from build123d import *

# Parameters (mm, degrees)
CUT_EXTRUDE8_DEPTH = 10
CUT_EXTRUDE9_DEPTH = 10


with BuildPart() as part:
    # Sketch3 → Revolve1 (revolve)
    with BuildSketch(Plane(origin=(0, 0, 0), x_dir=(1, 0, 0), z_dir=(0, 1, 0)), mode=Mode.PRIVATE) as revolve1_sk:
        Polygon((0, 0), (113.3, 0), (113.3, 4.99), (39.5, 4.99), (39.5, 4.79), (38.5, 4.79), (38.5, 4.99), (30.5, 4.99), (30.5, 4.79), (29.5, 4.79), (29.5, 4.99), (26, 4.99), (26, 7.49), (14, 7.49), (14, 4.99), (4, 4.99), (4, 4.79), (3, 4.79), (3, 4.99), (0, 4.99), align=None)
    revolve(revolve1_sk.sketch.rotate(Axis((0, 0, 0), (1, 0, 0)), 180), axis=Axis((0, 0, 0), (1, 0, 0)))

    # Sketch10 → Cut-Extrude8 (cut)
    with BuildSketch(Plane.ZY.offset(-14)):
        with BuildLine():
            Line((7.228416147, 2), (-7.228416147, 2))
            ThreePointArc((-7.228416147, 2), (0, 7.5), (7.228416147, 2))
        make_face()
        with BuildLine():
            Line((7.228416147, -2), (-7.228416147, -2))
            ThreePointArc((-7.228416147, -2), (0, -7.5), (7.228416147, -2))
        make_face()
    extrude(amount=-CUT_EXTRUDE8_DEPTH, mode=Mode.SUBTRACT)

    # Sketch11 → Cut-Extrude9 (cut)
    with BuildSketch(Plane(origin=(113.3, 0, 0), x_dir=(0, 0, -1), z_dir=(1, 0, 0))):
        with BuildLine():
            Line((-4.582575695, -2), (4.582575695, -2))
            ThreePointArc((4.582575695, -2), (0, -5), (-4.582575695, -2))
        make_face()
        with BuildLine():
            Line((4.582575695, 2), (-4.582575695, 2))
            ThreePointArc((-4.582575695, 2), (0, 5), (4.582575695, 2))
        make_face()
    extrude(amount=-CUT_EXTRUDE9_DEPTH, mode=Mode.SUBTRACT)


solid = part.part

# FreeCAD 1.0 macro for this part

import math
import FreeCAD as App
import Part
import Sketcher
Q = App.Units.Quantity


def add_polygon(sketch, points):
    """Adds a closed chain of lines whose ends are joined by coincident constraints."""
    first, n = sketch.GeometryCount, len(points)
    for a, b in zip(points, points[1:] + points[:1]):
        sketch.addGeometry(Part.LineSegment(App.Vector(*a, 0), App.Vector(*b, 0)), False)
    for i in range(n):
        sketch.addConstraint(Sketcher.Constraint("Coincident", first + i, 2, first + (i + 1) % n, 1))

doc = App.newDocument("Part")
body = doc.addObject("PartDesign::Body", "Body")

sketch1 = body.newObject("Sketcher::SketchObject", "Sketch")
sketch1.AttachmentSupport = (doc.getObject("XZ_Plane"), [""])
sketch1.MapMode = "FlatFace"
add_polygon(sketch1, [(0, 0), (113.3, 0), (113.3, -4.99), (39.5, -4.99), (39.5, -4.79), (38.5, -4.79), (38.5, -4.99), (30.5, -4.99), (30.5, -4.79), (29.5, -4.79), (29.5, -4.99), (26, -4.99), (26, -7.49), (14, -7.49), (14, -4.99), (4, -4.99), (4, -4.79), (3, -4.79), (3, -4.99), (0, -4.99)])
sketch1.addConstraint(Sketcher.Constraint("Horizontal", 0))
sketch1.addConstraint(Sketcher.Constraint("Vertical", 1))
sketch1.addConstraint(Sketcher.Constraint("Horizontal", 2))
sketch1.addConstraint(Sketcher.Constraint("Vertical", 3))
sketch1.addConstraint(Sketcher.Constraint("Horizontal", 4))
sketch1.addConstraint(Sketcher.Constraint("Vertical", 5))
sketch1.addConstraint(Sketcher.Constraint("Horizontal", 6))
sketch1.addConstraint(Sketcher.Constraint("Vertical", 7))
sketch1.addConstraint(Sketcher.Constraint("Horizontal", 8))
sketch1.addConstraint(Sketcher.Constraint("Vertical", 9))
sketch1.addConstraint(Sketcher.Constraint("Horizontal", 10))
sketch1.addConstraint(Sketcher.Constraint("Vertical", 11))
sketch1.addConstraint(Sketcher.Constraint("Horizontal", 12))
sketch1.addConstraint(Sketcher.Constraint("Vertical", 13))
sketch1.addConstraint(Sketcher.Constraint("Horizontal", 14))
sketch1.addConstraint(Sketcher.Constraint("Vertical", 15))
sketch1.addConstraint(Sketcher.Constraint("Horizontal", 16))
sketch1.addConstraint(Sketcher.Constraint("Vertical", 17))
sketch1.addConstraint(Sketcher.Constraint("Horizontal", 18))
sketch1.addConstraint(Sketcher.Constraint("Vertical", 19))
sketch1.addConstraint(Sketcher.Constraint("Coincident", 19, 2, -1, 1))
sketch1.addConstraint(Sketcher.Constraint("Horizontal", 2, 2, 5, 2))
sketch1.addConstraint(Sketcher.Constraint("Horizontal", 4, 2, 7, 2))
sketch1.addConstraint(Sketcher.Constraint("Horizontal", 6, 2, 9, 2))
sketch1.addConstraint(Sketcher.Constraint("Horizontal", 10, 2, 13, 2))
sketch1.addConstraint(Sketcher.Constraint("Horizontal", 8, 2, 15, 2))
sketch1.addConstraint(Sketcher.Constraint("Horizontal", 14, 2, 17, 2))
sketch1.addConstraint(Sketcher.Constraint("Equal", 4, 8))
sketch1.addConstraint(Sketcher.Constraint("Equal", 8, 16))
sketch1.addConstraint(Sketcher.Constraint("DistanceX", 4, 2, 4, 1, Q("1 mm")))
sketch1.addConstraint(Sketcher.Constraint("DistanceX", 6, 2, 6, 1, Q("8 mm")))
sketch1.addConstraint(Sketcher.Constraint("DistanceX", 12, 2, 12, 1, Q("12 mm")))
sketch1.addConstraint(Sketcher.Constraint("DistanceX", 14, 2, 14, 1, Q("10 mm")))
sketch1.addConstraint(Sketcher.Constraint("DistanceX", 18, 2, 18, 1, Q("3 mm")))
sketch1.addConstraint(Sketcher.Constraint("DistanceX", 0, 1, 0, 2, Q("113.3 mm")))
sketch1.addConstraint(Sketcher.Constraint("DistanceX", 2, 2, 2, 1, Q("73.8 mm")))
sketch1.addConstraint(Sketcher.Constraint("DistanceY", 3, 1, 3, 2, Q("0.2 mm")))
sketch1.addConstraint(Sketcher.Constraint("DistanceY", 11, 2, 11, 1, Q("2.5 mm")))
sketch1.addConstraint(Sketcher.Constraint("DistanceY", 1, 2, 1, 1, Q("4.99 mm")))
revolution = body.newObject("PartDesign::Revolution", "Revolution")
revolution.Profile = sketch1
revolution.ReferenceAxis = (sketch1, ["H_Axis"])
revolution.Angle = 360

sketch2 = body.newObject("Sketcher::SketchObject", "Sketch001")
sketch2.AttachmentSupport = (doc.getObject("YZ_Plane"), [""])
sketch2.MapMode = "FlatFace"
sketch2.AttachmentOffset = App.Placement(App.Vector(0, 0, 14), App.Rotation())
sketch2.addGeometry(Part.LineSegment(App.Vector(2, -7, 0), App.Vector(2, 7, 0)), False)
sketch2.addGeometry(Part.ArcOfCircle(Part.Circle(App.Vector(0, 0, 0), App.Vector(0, 0, 1), 7), math.radians(-75), math.radians(75)), False)
sketch2.addGeometry(Part.LineSegment(App.Vector(-2, 7, 0), App.Vector(-2, -7, 0)), False)
sketch2.addGeometry(Part.ArcOfCircle(Part.Circle(App.Vector(0, 0, 0), App.Vector(0, 0, 1), 7), math.radians(105), math.radians(255)), False)
sketch2.addConstraint(Sketcher.Constraint("Coincident", 0, 1, 1, 1))
sketch2.addConstraint(Sketcher.Constraint("Coincident", 1, 2, 0, 2))
sketch2.addConstraint(Sketcher.Constraint("Coincident", 2, 1, 3, 1))
sketch2.addConstraint(Sketcher.Constraint("Coincident", 3, 2, 2, 2))
sketch2.addConstraint(Sketcher.Constraint("Vertical", 0))
sketch2.addConstraint(Sketcher.Constraint("Vertical", 2))
sketch2.addConstraint(Sketcher.Constraint("Coincident", 1, 3, -1, 1))
sketch2.addConstraint(Sketcher.Constraint("Coincident", 3, 3, -1, 1))
sketch2.addConstraint(Sketcher.Constraint("Equal", 1, 3))
sketch2.addConstraint(Sketcher.Constraint("Horizontal", 1, 2, 2, 1))
sketch2.addConstraint(Sketcher.Constraint("Radius", 1, Q("7.5 mm")))
sketch2.addConstraint(Sketcher.Constraint("DistanceX", -1, 1, 0, 1, Q("2 mm")))
pocket1 = body.newObject("PartDesign::Pocket", "Pocket")
pocket1.Profile = sketch2
pocket1.Length = 10
pocket1.Reversed = True

sketch3 = body.newObject("Sketcher::SketchObject", "Sketch002")
sketch3.AttachmentSupport = (doc.getObject("YZ_Plane"), [""])
sketch3.MapMode = "FlatFace"
sketch3.AttachmentOffset = App.Placement(App.Vector(0, 0, 113.3), App.Rotation())
sketch3.addGeometry(Part.LineSegment(App.Vector(-2, -5, 0), App.Vector(-2, 5, 0)), False)
sketch3.addGeometry(Part.ArcOfCircle(Part.Circle(App.Vector(0, 0, 0), App.Vector(0, 0, 1), 5), math.radians(114), math.radians(246)), False)
sketch3.addGeometry(Part.LineSegment(App.Vector(2, 5, 0), App.Vector(2, -5, 0)), False)
sketch3.addGeometry(Part.ArcOfCircle(Part.Circle(App.Vector(0, 0, 0), App.Vector(0, 0, 1), 5), math.radians(-66), math.radians(66)), False)
sketch3.addConstraint(Sketcher.Constraint("Coincident", 0, 1, 1, 2))
sketch3.addConstraint(Sketcher.Constraint("Coincident", 1, 1, 0, 2))
sketch3.addConstraint(Sketcher.Constraint("Coincident", 2, 1, 3, 2))
sketch3.addConstraint(Sketcher.Constraint("Coincident", 3, 1, 2, 2))
sketch3.addConstraint(Sketcher.Constraint("Vertical", 0))
sketch3.addConstraint(Sketcher.Constraint("Vertical", 2))
sketch3.addConstraint(Sketcher.Constraint("Coincident", 1, 3, -1, 1))
sketch3.addConstraint(Sketcher.Constraint("Coincident", 3, 3, -1, 1))
sketch3.addConstraint(Sketcher.Constraint("Equal", 1, 3))
sketch3.addConstraint(Sketcher.Constraint("Horizontal", 1, 1, 2, 1))
sketch3.addConstraint(Sketcher.Constraint("Radius", 1, Q("5 mm")))
sketch3.addConstraint(Sketcher.Constraint("DistanceX", 0, 1, -1, 1, Q("2 mm")))
pocket2 = body.newObject("PartDesign::Pocket", "Pocket001")
pocket2.Profile = sketch3
pocket2.Length = 10

doc.recompute()
